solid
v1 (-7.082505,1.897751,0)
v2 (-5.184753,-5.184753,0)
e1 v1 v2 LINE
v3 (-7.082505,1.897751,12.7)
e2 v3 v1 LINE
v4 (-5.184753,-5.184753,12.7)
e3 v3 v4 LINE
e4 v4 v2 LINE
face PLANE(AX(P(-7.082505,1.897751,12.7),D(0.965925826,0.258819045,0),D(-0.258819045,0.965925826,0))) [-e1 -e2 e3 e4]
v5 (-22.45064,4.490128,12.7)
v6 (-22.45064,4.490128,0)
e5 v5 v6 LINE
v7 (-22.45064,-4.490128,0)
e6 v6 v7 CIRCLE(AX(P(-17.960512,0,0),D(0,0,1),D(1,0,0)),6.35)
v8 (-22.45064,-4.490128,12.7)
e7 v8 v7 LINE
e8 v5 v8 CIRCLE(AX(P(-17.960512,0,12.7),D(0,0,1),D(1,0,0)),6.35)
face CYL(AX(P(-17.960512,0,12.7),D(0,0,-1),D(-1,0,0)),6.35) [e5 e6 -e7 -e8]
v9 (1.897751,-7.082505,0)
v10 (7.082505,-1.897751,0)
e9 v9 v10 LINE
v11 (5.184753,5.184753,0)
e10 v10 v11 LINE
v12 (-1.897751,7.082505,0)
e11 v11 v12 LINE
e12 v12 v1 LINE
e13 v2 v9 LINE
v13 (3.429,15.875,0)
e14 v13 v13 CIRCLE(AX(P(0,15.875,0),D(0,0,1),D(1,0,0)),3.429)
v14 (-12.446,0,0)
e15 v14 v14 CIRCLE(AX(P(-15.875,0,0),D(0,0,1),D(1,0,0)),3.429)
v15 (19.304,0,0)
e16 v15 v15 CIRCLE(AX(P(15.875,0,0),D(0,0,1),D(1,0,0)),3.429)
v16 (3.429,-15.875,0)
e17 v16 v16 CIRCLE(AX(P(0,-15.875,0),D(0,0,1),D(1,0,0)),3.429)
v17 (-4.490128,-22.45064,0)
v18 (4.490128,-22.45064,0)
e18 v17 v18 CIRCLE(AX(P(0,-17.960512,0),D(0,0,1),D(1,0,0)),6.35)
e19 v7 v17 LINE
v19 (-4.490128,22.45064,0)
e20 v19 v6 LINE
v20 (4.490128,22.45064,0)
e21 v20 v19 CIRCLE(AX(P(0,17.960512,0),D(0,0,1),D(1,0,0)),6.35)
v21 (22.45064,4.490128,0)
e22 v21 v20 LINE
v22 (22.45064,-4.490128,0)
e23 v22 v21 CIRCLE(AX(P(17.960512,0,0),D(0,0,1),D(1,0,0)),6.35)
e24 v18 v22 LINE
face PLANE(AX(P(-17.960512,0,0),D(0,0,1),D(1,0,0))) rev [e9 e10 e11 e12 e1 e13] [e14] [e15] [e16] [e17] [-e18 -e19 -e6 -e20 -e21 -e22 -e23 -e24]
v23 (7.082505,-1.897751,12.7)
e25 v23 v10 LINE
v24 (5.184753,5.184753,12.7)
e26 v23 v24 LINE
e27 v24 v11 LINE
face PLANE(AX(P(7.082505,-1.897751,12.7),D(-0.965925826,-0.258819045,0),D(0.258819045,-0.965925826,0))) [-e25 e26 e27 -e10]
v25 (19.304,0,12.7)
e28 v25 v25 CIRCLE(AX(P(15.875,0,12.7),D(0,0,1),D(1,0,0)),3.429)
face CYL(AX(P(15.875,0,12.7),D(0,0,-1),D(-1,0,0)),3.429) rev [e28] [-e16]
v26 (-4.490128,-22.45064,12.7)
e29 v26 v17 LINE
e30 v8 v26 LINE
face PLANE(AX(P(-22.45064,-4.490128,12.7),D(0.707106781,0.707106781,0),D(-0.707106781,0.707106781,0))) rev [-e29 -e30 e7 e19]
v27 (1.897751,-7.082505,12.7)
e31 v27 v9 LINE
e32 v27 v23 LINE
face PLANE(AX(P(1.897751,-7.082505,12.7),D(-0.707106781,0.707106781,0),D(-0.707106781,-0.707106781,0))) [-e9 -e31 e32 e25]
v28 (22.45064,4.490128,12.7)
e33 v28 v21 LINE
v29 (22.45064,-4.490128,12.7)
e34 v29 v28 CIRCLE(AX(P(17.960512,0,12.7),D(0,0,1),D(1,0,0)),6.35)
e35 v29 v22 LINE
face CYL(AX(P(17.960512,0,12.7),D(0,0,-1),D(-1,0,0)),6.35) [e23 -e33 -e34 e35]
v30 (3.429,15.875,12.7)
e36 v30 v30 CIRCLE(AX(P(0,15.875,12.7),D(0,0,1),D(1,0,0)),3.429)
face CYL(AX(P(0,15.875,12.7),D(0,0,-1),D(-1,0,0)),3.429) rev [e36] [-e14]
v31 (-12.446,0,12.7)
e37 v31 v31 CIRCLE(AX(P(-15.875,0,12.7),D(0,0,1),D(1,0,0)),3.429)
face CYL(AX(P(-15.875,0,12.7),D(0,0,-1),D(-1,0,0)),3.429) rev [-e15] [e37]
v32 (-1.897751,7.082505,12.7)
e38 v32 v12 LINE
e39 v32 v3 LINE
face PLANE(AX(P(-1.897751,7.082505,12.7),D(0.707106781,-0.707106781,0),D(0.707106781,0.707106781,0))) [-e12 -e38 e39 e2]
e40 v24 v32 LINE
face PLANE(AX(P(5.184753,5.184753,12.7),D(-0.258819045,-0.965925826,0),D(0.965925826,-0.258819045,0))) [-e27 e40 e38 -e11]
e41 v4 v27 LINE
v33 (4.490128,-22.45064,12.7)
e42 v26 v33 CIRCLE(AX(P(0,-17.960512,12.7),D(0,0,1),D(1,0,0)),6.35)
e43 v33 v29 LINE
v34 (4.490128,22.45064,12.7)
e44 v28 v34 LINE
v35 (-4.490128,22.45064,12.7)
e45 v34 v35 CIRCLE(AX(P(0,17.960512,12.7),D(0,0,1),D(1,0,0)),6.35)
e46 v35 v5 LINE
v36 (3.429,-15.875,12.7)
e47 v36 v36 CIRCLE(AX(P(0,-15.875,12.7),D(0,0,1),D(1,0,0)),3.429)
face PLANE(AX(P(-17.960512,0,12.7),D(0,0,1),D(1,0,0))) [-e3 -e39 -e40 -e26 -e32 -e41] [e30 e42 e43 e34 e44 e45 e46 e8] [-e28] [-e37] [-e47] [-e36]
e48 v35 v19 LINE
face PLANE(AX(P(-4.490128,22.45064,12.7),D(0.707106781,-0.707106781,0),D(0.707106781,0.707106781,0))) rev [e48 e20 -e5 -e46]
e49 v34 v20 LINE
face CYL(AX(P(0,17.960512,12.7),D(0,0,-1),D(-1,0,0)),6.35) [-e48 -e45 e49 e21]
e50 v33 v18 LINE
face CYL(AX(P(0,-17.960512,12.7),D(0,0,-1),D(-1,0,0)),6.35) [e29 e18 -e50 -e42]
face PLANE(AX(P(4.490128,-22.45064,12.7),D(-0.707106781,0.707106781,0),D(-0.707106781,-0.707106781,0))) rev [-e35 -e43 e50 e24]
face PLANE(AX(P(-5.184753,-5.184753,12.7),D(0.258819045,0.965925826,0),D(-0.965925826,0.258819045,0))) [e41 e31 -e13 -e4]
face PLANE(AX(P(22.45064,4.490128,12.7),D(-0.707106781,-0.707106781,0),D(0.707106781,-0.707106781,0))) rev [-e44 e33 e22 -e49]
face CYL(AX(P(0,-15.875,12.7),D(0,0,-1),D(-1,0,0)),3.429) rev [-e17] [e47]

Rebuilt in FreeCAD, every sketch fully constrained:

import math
import FreeCAD as App
import Part
import Sketcher

V = App.Vector
Q = App.Units.Quantity

doc = App.newDocument("Part")
params = doc.addObject("Spreadsheet::Sheet", "Params")
for row, (alias, value) in enumerate([
    ("sketch1_diameter", "0.27 in"),
    ("sketch1_radius", "0.25 in"),
    ("sketch1_length", "1 in"),
    ("pad1_length", "0.5 in"),
], start=1):
    params.set(f"A{row}", alias)
    params.set(f"B{row}", "=" + value)
    params.setAlias(f"B{row}", alias)

body = doc.addObject("PartDesign::Body", "Body")

sketch1 = doc.addObject("Sketcher::SketchObject", "Sketch")
body.addObject(sketch1)
sketch1.AttachmentSupport = (doc.XY_Plane, [""])
sketch1.MapMode = "FlatFace"
sketch1.addGeometry([
    Part.LineSegment(V(-4.490128, 22.45064, 0), V(-22.45064, 4.490128, 0)),
    Part.ArcOfCircle(Part.Circle(V(-17.960512, 0, 0), V(0, 0, 1), 6.35), math.radians(135), math.radians(225)),
    Part.LineSegment(V(-22.45064, -4.490128, 0), V(-4.490128, -22.45064, 0)),
    Part.ArcOfCircle(Part.Circle(V(0, -17.960512, 0), V(0, 0, 1), 6.35), math.radians(-135), math.radians(-45)),
    Part.LineSegment(V(4.490128, -22.45064, 0), V(22.45064, -4.490128, 0)),
    Part.ArcOfCircle(Part.Circle(V(17.960512, 0, 0), V(0, 0, 1), 6.35), math.radians(-45), math.radians(45)),
    Part.LineSegment(V(22.45064, 4.490128, 0), V(4.490128, 22.45064, 0)),
    Part.ArcOfCircle(Part.Circle(V(0, 17.960512, 0), V(0, 0, 1), 6.35), math.radians(45), math.radians(135)),
    Part.Circle(V(0, -15.875, 0), V(0, 0, 1), 3.429),
    Part.Circle(V(-15.875, 0, 0), V(0, 0, 1), 3.429),
    Part.LineSegment(V(-1.897751, 7.082505, 0), V(5.184753, 5.184753, 0)),
    Part.LineSegment(V(5.184753, 5.184753, 0), V(7.082505, -1.897751, 0)),
    Part.LineSegment(V(7.082505, -1.897751, 0), V(1.897751, -7.082505, 0)),
    Part.LineSegment(V(1.897751, -7.082505, 0), V(-5.184753, -5.184753, 0)),
    Part.LineSegment(V(-5.184753, -5.184753, 0), V(-7.082505, 1.897751, 0)),
    Part.LineSegment(V(-7.082505, 1.897751, 0), V(-1.897751, 7.082505, 0)),
    Part.Circle(V(15.875, 0, 0), V(0, 0, 1), 3.429),
    Part.Circle(V(0, 15.875, 0), V(0, 0, 1), 3.429),
], False)
sketch1.addConstraint([
    Sketcher.Constraint("Tangent", 0, 2, 1, 1),
    Sketcher.Constraint("Tangent", 1, 2, 2, 1),
    Sketcher.Constraint("Tangent", 2, 2, 3, 1),
    Sketcher.Constraint("Tangent", 3, 2, 4, 1),
    Sketcher.Constraint("Tangent", 4, 2, 5, 1),
    Sketcher.Constraint("Tangent", 5, 2, 6, 1),
    Sketcher.Constraint("Tangent", 6, 2, 7, 1),
    Sketcher.Constraint("Tangent", 7, 2, 0, 1),
    Sketcher.Constraint("Coincident", 10, 2, 11, 1),
    Sketcher.Constraint("Coincident", 11, 2, 12, 1),
    Sketcher.Constraint("Coincident", 12, 2, 13, 1),
    Sketcher.Constraint("Coincident", 13, 2, 14, 1),
    Sketcher.Constraint("Coincident", 14, 2, 15, 1),
    Sketcher.Constraint("Coincident", 15, 2, 10, 1),
    Sketcher.Constraint("Equal", 1, 3),
    Sketcher.Constraint("Equal", 3, 5),
    Sketcher.Constraint("Equal", 5, 7),
    Sketcher.Constraint("Equal", 8, 9),
    Sketcher.Constraint("Equal", 9, 16),
    Sketcher.Constraint("Equal", 16, 17),
    Sketcher.Constraint("Symmetric", 1, 3, 5, 3, -1, 1),
    Sketcher.Constraint("Symmetric", 3, 3, 7, 3, -1, 1),
    Sketcher.Constraint("Symmetric", 9, 3, 16, 3, -1, 1),
    Sketcher.Constraint("Symmetric", 8, 3, 17, 3, -1, 1),
    Sketcher.Constraint("Symmetric", 10, 2, 13, 2, -1, 1),
    Sketcher.Constraint("Symmetric", 11, 2, 14, 2, -1, 1),
    Sketcher.Constraint("Symmetric", 12, 2, 15, 2, -1, 1),
    Sketcher.Constraint("Symmetric", 2, 2, 3, 2, -2),
    Sketcher.Constraint("PointOnObject", 8, 3, -2),
    Sketcher.Constraint("PointOnObject", 9, 3, -1),
    Sketcher.Constraint("Perpendicular", 0, 2),
    Sketcher.Constraint("Perpendicular", 6, 12),
    Sketcher.Constraint("Equal", 10, 11),
    Sketcher.Constraint("Equal", 11, 12),
    Sketcher.Constraint("Diameter", 8, Q("0.27 in")),
    Sketcher.Constraint("Radius", 1, Q("0.25 in")),
    Sketcher.Constraint("Distance", 0, Q("1 in")),
    Sketcher.Constraint("Angle", 10, Q("-15 deg")),
    Sketcher.Constraint("Angle", 11, Q("-75 deg")),
    Sketcher.Constraint("DistanceX", 9, 3, 16, 3, Q("1.25 in")),
    Sketcher.Constraint("DistanceY", 8, 3, -1, 1, Q("0.625 in")),
    Sketcher.Constraint("DistanceX", 12, 2, 10, 2, Q("3.287002 mm")),
])
sketch1.setExpression("Constraints[34]", "Params.sketch1_diameter")
sketch1.setExpression("Constraints[35]", "Params.sketch1_radius")
sketch1.setExpression("Constraints[36]", "Params.sketch1_length")
pad1 = doc.addObject("PartDesign::Pad", "Pad")
body.addObject(pad1)
pad1.Profile = sketch1
pad1.setExpression("Length", "Params.pad1_length")

doc.recompute()
